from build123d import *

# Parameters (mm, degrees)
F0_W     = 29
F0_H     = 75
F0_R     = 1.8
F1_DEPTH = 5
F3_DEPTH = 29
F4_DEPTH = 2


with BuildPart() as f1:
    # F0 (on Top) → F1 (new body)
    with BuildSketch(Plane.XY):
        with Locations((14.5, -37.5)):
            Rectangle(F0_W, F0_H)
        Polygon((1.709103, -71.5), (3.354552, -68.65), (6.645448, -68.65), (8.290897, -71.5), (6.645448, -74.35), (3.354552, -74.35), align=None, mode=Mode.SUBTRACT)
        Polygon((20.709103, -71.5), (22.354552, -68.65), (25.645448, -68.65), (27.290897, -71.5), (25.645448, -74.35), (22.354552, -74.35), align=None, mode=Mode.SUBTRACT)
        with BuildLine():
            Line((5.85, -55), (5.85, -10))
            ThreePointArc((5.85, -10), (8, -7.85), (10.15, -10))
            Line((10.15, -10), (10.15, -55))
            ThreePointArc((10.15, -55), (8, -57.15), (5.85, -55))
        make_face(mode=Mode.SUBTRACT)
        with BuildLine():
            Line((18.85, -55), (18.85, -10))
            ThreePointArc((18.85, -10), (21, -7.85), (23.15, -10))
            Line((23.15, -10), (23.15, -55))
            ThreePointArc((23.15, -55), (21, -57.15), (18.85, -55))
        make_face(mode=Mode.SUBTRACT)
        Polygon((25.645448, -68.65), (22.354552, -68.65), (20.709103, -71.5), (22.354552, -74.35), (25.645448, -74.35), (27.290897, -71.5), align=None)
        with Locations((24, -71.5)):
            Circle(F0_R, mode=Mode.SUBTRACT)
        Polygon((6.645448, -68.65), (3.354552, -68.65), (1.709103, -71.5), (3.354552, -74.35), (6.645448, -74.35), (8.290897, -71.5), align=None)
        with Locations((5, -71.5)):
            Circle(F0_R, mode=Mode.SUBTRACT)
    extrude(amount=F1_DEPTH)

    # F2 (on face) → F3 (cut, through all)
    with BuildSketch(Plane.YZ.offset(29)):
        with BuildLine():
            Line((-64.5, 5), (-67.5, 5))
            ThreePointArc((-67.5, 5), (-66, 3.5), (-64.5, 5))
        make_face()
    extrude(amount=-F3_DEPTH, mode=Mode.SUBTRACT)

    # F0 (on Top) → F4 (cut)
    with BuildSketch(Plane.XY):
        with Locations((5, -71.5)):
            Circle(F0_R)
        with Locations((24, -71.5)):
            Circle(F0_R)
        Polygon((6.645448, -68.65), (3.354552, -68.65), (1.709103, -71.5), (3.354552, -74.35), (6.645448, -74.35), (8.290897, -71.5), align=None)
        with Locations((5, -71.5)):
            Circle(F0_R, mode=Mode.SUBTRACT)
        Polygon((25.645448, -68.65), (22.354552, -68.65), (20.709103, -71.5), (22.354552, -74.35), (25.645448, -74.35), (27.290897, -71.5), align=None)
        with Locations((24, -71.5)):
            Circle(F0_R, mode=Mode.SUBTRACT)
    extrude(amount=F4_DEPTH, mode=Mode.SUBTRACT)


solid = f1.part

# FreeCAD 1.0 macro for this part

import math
import FreeCAD as App
import Part
import Sketcher
Q = App.Units.Quantity


def add_polygon(sketch, points):
    """Adds a closed chain of lines whose ends are joined by coincident constraints."""
    first, n = sketch.GeometryCount, len(points)
    for a, b in zip(points, points[1:] + points[:1]):
        sketch.addGeometry(Part.LineSegment(App.Vector(*a, 0), App.Vector(*b, 0)), False)
    for i in range(n):
        sketch.addConstraint(Sketcher.Constraint("Coincident", first + i, 2, first + (i + 1) % n, 1))

doc = App.newDocument("Part")
params = doc.addObject("Spreadsheet::Sheet", "Params")
for row, (alias, value) in enumerate([
    ("sketch1_diameter", "3.6 mm"),
    ("sketch1_width", "29 mm"),
    ("sketch1_height", "75 mm"),
    ("sketch1_height2", "45 mm"),
    ("sketch1_radius", "2.15 mm"),
    ("pad1_length", "5 mm"),
    ("sketch2_radius", "1.5 mm"),
    ("sketch3_diameter", "3.6 mm"),
    ("pocket2_length", "2 mm"),
], start=1):
    params.set(f"A{row}", alias)
    params.set(f"B{row}", "=" + value)
    params.setAlias(f"B{row}", alias)

body = doc.addObject("PartDesign::Body", "Body")

# Sketch on XY plane
sketch1 = doc.addObject("Sketcher::SketchObject", "Sketch")
body.addObject(sketch1)
sketch1.AttachmentSupport = (doc.XY_Plane, [""])
sketch1.MapMode = "FlatFace"
add_polygon(sketch1, [(0, 0), (0, -75), (29, -75), (29, 0)])  # lines 0-3
sketch1.addGeometry(Part.Circle(App.Vector(5, -71.5, 0), App.Vector(0, 0, 1), 1.8), False)  # 4
sketch1.addGeometry(Part.Circle(App.Vector(24, -71.5, 0), App.Vector(0, 0, 1), 1.8), False)  # 5
sketch1.addGeometry(Part.ArcOfCircle(Part.Circle(App.Vector(8, -55, 0), App.Vector(0, 0, 1), 2.15), math.radians(180), math.radians(360)), False)  # 6
sketch1.addGeometry(Part.LineSegment(App.Vector(5.85, -55, 0), App.Vector(5.85, -10, 0)), False)  # 7
sketch1.addGeometry(Part.ArcOfCircle(Part.Circle(App.Vector(8, -10, 0), App.Vector(0, 0, 1), 2.15), math.radians(0), math.radians(180)), False)  # 8
sketch1.addGeometry(Part.LineSegment(App.Vector(10.15, -10, 0), App.Vector(10.15, -55, 0)), False)  # 9
sketch1.addGeometry(Part.ArcOfCircle(Part.Circle(App.Vector(21, -55, 0), App.Vector(0, 0, 1), 2.15), math.radians(180), math.radians(360)), False)  # 10
sketch1.addGeometry(Part.LineSegment(App.Vector(18.85, -55, 0), App.Vector(18.85, -10, 0)), False)  # 11
sketch1.addGeometry(Part.ArcOfCircle(Part.Circle(App.Vector(21, -10, 0), App.Vector(0, 0, 1), 2.15), math.radians(0), math.radians(180)), False)  # 12
sketch1.addGeometry(Part.LineSegment(App.Vector(23.15, -10, 0), App.Vector(23.15, -55, 0)), False)  # 13
sketch1.addConstraint(Sketcher.Constraint("Tangent", 6, 1, 7, 1))
sketch1.addConstraint(Sketcher.Constraint("Tangent", 7, 2, 8, 2))
sketch1.addConstraint(Sketcher.Constraint("Tangent", 8, 1, 9, 1))
sketch1.addConstraint(Sketcher.Constraint("Tangent", 9, 2, 6, 2))
sketch1.addConstraint(Sketcher.Constraint("Tangent", 10, 1, 11, 1))
sketch1.addConstraint(Sketcher.Constraint("Tangent", 11, 2, 12, 2))
sketch1.addConstraint(Sketcher.Constraint("Tangent", 12, 1, 13, 1))
sketch1.addConstraint(Sketcher.Constraint("Tangent", 13, 2, 10, 2))
sketch1.addConstraint(Sketcher.Constraint("Vertical", 0))
sketch1.addConstraint(Sketcher.Constraint("Horizontal", 1))
sketch1.addConstraint(Sketcher.Constraint("Vertical", 2))
sketch1.addConstraint(Sketcher.Constraint("Horizontal", 3))
sketch1.addConstraint(Sketcher.Constraint("Vertical", 7))
sketch1.addConstraint(Sketcher.Constraint("Vertical", 9))
sketch1.addConstraint(Sketcher.Constraint("Vertical", 11))
sketch1.addConstraint(Sketcher.Constraint("Vertical", 13))
sketch1.addConstraint(Sketcher.Constraint("Coincident", 3, 2, -1, 1))
sketch1.addConstraint(Sketcher.Constraint("Equal", 4, 5))
sketch1.addConstraint(Sketcher.Constraint("Equal", 8, 10))
sketch1.addConstraint(Sketcher.Constraint("Horizontal", 4, 3, 5, 3))
sketch1.addConstraint(Sketcher.Constraint("Horizontal", 6, 3, 10, 3))
sketch1.addConstraint(Sketcher.Constraint("Horizontal", 8, 3, 12, 3))
sketch1.addConstraint(Sketcher.Constraint("Diameter", 4, 3.6))
sketch1.addConstraint(Sketcher.Constraint("DistanceX", 1, 1, 1, 2, 29.0))
sketch1.addConstraint(Sketcher.Constraint("DistanceY", 0, 2, 0, 1, 75.0))
sketch1.addConstraint(Sketcher.Constraint("DistanceY", 7, 1, 7, 2, 45.0))
sketch1.addConstraint(Sketcher.Constraint("Radius", 6, 2.15))
sketch1.addConstraint(Sketcher.Constraint("DistanceX", -1, 1, 4, 3, 5.0))
sketch1.addConstraint(Sketcher.Constraint("DistanceX", -1, 1, 5, 3, 24.0))
sketch1.addConstraint(Sketcher.Constraint("DistanceX", -1, 1, 6, 3, 8.0))
sketch1.addConstraint(Sketcher.Constraint("DistanceY", 6, 3, -1, 1, 55.0))
sketch1.addConstraint(Sketcher.Constraint("DistanceX", -1, 1, 10, 3, 21.0))
sketch1.addConstraint(Sketcher.Constraint("DistanceY", 4, 3, -1, 1, 71.5))
sketch1.setExpression("Constraints[26]", "Params.sketch1_diameter")
sketch1.setExpression("Constraints[27]", "Params.sketch1_width")
sketch1.setExpression("Constraints[28]", "Params.sketch1_height")
sketch1.setExpression("Constraints[29]", "Params.sketch1_height2")
sketch1.setExpression("Constraints[30]", "Params.sketch1_radius")
pad1 = doc.addObject("PartDesign::Pad", "Pad")
body.addObject(pad1)
pad1.Profile = sketch1
pad1.setExpression("Length", "Params.pad1_length")

# Sketch on YZ plane
sketch2 = doc.addObject("Sketcher::SketchObject", "Sketch001")
body.addObject(sketch2)
sketch2.AttachmentSupport = (doc.YZ_Plane, [""])
sketch2.MapMode = "FlatFace"
sketch2.AttachmentOffset = App.Placement(App.Vector(0, 0, 29), App.Rotation())
sketch2.addGeometry(Part.LineSegment(App.Vector(-64.5, 5, 0), App.Vector(-67.5, 5, 0)), False)
sketch2.addGeometry(Part.ArcOfCircle(Part.Circle(App.Vector(-66, 5, 0), App.Vector(0, 0, 1), 1.5), math.radians(180), math.radians(360)), False)
sketch2.addConstraint(Sketcher.Constraint("Coincident", 0, 1, 1, 2))
sketch2.addConstraint(Sketcher.Constraint("Coincident", 1, 1, 0, 2))
sketch2.addConstraint(Sketcher.Constraint("Horizontal", 0))
sketch2.addConstraint(Sketcher.Constraint("Horizontal", 1, 3, 0, 1))
sketch2.addConstraint(Sketcher.Constraint("Radius", 1, 1.5))
sketch2.addConstraint(Sketcher.Constraint("DistanceX", 1, 3, -1, 1, 66.0))
sketch2.addConstraint(Sketcher.Constraint("DistanceY", -1, 1, 1, 3, 5.0))
sketch2.setExpression("Constraints[4]", "Params.sketch2_radius")
pocket1 = doc.addObject("PartDesign::Pocket", "Pocket")
body.addObject(pocket1)
pocket1.Profile = sketch2
pocket1.Type = "ThroughAll"

# Sketch on XY plane
sketch3 = doc.addObject("Sketcher::SketchObject", "Sketch002")
body.addObject(sketch3)
sketch3.AttachmentSupport = (doc.XY_Plane, [""])
sketch3.MapMode = "FlatFace"
add_polygon(sketch3, [(6.645448, -68.65), (3.354552, -68.65), (1.709103, -71.5), (3.354552, -74.35), (6.645448, -74.35), (8.290897, -71.5)])  # lines 0-5
sketch3.addGeometry(Part.Circle(App.Vector(5, -71.5, 0), App.Vector(0, 0, 1), 1.8), False)  # 6
add_polygon(sketch3, [(25.645448, -68.65), (22.354552, -68.65), (20.709103, -71.5), (22.354552, -74.35), (25.645448, -74.35), (27.290897, -71.5)])  # lines 7-12
sketch3.addGeometry(Part.Circle(App.Vector(24, -71.5, 0), App.Vector(0, 0, 1), 1.8), False)  # 13
sketch3.addConstraint(Sketcher.Constraint("Horizontal", 0))
sketch3.addConstraint(Sketcher.Constraint("Horizontal", 3))
sketch3.addConstraint(Sketcher.Constraint("Horizontal", 7))
sketch3.addConstraint(Sketcher.Constraint("Horizontal", 10))
sketch3.addConstraint(Sketcher.Constraint("Equal", 6, 13))
sketch3.addConstraint(Sketcher.Constraint("Parallel", 1, 4))
sketch3.addConstraint(Sketcher.Constraint("Parallel", 2, 5))
sketch3.addConstraint(Sketcher.Constraint("Parallel", 4, 8))
sketch3.addConstraint(Sketcher.Constraint("Parallel", 5, 9))
sketch3.addConstraint(Sketcher.Constraint("Parallel", 8, 11))
sketch3.addConstraint(Sketcher.Constraint("Parallel", 9, 12))
sketch3.addConstraint(Sketcher.Constraint("Horizontal", 6, 3, 13, 3))
sketch3.addConstraint(Sketcher.Constraint("Horizontal", 13, 3, 1, 2))
sketch3.addConstraint(Sketcher.Constraint("Horizontal", 1, 2, 4, 2))
sketch3.addConstraint(Sketcher.Constraint("Horizontal", 5, 2, 7, 2))
sketch3.addConstraint(Sketcher.Constraint("Horizontal", 4, 2, 8, 2))
sketch3.addConstraint(Sketcher.Constraint("Horizontal", 3, 2, 9, 2))
sketch3.addConstraint(Sketcher.Constraint("Horizontal", 8, 2, 11, 2))
sketch3.addConstraint(Sketcher.Constraint("Vertical", 0, 2, 2, 2))
sketch3.addConstraint(Sketcher.Constraint("Vertical", 3, 2, 5, 2))
sketch3.addConstraint(Sketcher.Constraint("Equal", 3, 7))
sketch3.addConstraint(Sketcher.Constraint("Diameter", 6, 3.6))
sketch3.addConstraint(Sketcher.Constraint("Angle", 1, Q("-120.000011 deg")))
sketch3.addConstraint(Sketcher.Constraint("DistanceX", -1, 1, 6, 3, 5.0))
sketch3.addConstraint(Sketcher.Constraint("DistanceX", -1, 1, 13, 3, 24.0))
sketch3.addConstraint(Sketcher.Constraint("DistanceY", 6, 3, -1, 1, 71.5))
sketch3.addConstraint(Sketcher.Constraint("DistanceY", 2, 2, 0, 2, 5.7))
sketch3.addConstraint(Sketcher.Constraint("DistanceX", 0, 2, 0, 1, 3.290896))
sketch3.addConstraint(Sketcher.Constraint("DistanceX", -1, 1, 0, 2, 3.354552))
sketch3.addConstraint(Sketcher.Constraint("DistanceX", 4, 2, 10, 2, 17.354551))
sketch3.setExpression("Constraints[33]", "Params.sketch3_diameter")
pocket2 = doc.addObject("PartDesign::Pocket", "Pocket001")
body.addObject(pocket2)
pocket2.Profile = sketch3
pocket2.setExpression("Length", "Params.pocket2_length")
pocket2.Reversed = True

doc.recompute()
